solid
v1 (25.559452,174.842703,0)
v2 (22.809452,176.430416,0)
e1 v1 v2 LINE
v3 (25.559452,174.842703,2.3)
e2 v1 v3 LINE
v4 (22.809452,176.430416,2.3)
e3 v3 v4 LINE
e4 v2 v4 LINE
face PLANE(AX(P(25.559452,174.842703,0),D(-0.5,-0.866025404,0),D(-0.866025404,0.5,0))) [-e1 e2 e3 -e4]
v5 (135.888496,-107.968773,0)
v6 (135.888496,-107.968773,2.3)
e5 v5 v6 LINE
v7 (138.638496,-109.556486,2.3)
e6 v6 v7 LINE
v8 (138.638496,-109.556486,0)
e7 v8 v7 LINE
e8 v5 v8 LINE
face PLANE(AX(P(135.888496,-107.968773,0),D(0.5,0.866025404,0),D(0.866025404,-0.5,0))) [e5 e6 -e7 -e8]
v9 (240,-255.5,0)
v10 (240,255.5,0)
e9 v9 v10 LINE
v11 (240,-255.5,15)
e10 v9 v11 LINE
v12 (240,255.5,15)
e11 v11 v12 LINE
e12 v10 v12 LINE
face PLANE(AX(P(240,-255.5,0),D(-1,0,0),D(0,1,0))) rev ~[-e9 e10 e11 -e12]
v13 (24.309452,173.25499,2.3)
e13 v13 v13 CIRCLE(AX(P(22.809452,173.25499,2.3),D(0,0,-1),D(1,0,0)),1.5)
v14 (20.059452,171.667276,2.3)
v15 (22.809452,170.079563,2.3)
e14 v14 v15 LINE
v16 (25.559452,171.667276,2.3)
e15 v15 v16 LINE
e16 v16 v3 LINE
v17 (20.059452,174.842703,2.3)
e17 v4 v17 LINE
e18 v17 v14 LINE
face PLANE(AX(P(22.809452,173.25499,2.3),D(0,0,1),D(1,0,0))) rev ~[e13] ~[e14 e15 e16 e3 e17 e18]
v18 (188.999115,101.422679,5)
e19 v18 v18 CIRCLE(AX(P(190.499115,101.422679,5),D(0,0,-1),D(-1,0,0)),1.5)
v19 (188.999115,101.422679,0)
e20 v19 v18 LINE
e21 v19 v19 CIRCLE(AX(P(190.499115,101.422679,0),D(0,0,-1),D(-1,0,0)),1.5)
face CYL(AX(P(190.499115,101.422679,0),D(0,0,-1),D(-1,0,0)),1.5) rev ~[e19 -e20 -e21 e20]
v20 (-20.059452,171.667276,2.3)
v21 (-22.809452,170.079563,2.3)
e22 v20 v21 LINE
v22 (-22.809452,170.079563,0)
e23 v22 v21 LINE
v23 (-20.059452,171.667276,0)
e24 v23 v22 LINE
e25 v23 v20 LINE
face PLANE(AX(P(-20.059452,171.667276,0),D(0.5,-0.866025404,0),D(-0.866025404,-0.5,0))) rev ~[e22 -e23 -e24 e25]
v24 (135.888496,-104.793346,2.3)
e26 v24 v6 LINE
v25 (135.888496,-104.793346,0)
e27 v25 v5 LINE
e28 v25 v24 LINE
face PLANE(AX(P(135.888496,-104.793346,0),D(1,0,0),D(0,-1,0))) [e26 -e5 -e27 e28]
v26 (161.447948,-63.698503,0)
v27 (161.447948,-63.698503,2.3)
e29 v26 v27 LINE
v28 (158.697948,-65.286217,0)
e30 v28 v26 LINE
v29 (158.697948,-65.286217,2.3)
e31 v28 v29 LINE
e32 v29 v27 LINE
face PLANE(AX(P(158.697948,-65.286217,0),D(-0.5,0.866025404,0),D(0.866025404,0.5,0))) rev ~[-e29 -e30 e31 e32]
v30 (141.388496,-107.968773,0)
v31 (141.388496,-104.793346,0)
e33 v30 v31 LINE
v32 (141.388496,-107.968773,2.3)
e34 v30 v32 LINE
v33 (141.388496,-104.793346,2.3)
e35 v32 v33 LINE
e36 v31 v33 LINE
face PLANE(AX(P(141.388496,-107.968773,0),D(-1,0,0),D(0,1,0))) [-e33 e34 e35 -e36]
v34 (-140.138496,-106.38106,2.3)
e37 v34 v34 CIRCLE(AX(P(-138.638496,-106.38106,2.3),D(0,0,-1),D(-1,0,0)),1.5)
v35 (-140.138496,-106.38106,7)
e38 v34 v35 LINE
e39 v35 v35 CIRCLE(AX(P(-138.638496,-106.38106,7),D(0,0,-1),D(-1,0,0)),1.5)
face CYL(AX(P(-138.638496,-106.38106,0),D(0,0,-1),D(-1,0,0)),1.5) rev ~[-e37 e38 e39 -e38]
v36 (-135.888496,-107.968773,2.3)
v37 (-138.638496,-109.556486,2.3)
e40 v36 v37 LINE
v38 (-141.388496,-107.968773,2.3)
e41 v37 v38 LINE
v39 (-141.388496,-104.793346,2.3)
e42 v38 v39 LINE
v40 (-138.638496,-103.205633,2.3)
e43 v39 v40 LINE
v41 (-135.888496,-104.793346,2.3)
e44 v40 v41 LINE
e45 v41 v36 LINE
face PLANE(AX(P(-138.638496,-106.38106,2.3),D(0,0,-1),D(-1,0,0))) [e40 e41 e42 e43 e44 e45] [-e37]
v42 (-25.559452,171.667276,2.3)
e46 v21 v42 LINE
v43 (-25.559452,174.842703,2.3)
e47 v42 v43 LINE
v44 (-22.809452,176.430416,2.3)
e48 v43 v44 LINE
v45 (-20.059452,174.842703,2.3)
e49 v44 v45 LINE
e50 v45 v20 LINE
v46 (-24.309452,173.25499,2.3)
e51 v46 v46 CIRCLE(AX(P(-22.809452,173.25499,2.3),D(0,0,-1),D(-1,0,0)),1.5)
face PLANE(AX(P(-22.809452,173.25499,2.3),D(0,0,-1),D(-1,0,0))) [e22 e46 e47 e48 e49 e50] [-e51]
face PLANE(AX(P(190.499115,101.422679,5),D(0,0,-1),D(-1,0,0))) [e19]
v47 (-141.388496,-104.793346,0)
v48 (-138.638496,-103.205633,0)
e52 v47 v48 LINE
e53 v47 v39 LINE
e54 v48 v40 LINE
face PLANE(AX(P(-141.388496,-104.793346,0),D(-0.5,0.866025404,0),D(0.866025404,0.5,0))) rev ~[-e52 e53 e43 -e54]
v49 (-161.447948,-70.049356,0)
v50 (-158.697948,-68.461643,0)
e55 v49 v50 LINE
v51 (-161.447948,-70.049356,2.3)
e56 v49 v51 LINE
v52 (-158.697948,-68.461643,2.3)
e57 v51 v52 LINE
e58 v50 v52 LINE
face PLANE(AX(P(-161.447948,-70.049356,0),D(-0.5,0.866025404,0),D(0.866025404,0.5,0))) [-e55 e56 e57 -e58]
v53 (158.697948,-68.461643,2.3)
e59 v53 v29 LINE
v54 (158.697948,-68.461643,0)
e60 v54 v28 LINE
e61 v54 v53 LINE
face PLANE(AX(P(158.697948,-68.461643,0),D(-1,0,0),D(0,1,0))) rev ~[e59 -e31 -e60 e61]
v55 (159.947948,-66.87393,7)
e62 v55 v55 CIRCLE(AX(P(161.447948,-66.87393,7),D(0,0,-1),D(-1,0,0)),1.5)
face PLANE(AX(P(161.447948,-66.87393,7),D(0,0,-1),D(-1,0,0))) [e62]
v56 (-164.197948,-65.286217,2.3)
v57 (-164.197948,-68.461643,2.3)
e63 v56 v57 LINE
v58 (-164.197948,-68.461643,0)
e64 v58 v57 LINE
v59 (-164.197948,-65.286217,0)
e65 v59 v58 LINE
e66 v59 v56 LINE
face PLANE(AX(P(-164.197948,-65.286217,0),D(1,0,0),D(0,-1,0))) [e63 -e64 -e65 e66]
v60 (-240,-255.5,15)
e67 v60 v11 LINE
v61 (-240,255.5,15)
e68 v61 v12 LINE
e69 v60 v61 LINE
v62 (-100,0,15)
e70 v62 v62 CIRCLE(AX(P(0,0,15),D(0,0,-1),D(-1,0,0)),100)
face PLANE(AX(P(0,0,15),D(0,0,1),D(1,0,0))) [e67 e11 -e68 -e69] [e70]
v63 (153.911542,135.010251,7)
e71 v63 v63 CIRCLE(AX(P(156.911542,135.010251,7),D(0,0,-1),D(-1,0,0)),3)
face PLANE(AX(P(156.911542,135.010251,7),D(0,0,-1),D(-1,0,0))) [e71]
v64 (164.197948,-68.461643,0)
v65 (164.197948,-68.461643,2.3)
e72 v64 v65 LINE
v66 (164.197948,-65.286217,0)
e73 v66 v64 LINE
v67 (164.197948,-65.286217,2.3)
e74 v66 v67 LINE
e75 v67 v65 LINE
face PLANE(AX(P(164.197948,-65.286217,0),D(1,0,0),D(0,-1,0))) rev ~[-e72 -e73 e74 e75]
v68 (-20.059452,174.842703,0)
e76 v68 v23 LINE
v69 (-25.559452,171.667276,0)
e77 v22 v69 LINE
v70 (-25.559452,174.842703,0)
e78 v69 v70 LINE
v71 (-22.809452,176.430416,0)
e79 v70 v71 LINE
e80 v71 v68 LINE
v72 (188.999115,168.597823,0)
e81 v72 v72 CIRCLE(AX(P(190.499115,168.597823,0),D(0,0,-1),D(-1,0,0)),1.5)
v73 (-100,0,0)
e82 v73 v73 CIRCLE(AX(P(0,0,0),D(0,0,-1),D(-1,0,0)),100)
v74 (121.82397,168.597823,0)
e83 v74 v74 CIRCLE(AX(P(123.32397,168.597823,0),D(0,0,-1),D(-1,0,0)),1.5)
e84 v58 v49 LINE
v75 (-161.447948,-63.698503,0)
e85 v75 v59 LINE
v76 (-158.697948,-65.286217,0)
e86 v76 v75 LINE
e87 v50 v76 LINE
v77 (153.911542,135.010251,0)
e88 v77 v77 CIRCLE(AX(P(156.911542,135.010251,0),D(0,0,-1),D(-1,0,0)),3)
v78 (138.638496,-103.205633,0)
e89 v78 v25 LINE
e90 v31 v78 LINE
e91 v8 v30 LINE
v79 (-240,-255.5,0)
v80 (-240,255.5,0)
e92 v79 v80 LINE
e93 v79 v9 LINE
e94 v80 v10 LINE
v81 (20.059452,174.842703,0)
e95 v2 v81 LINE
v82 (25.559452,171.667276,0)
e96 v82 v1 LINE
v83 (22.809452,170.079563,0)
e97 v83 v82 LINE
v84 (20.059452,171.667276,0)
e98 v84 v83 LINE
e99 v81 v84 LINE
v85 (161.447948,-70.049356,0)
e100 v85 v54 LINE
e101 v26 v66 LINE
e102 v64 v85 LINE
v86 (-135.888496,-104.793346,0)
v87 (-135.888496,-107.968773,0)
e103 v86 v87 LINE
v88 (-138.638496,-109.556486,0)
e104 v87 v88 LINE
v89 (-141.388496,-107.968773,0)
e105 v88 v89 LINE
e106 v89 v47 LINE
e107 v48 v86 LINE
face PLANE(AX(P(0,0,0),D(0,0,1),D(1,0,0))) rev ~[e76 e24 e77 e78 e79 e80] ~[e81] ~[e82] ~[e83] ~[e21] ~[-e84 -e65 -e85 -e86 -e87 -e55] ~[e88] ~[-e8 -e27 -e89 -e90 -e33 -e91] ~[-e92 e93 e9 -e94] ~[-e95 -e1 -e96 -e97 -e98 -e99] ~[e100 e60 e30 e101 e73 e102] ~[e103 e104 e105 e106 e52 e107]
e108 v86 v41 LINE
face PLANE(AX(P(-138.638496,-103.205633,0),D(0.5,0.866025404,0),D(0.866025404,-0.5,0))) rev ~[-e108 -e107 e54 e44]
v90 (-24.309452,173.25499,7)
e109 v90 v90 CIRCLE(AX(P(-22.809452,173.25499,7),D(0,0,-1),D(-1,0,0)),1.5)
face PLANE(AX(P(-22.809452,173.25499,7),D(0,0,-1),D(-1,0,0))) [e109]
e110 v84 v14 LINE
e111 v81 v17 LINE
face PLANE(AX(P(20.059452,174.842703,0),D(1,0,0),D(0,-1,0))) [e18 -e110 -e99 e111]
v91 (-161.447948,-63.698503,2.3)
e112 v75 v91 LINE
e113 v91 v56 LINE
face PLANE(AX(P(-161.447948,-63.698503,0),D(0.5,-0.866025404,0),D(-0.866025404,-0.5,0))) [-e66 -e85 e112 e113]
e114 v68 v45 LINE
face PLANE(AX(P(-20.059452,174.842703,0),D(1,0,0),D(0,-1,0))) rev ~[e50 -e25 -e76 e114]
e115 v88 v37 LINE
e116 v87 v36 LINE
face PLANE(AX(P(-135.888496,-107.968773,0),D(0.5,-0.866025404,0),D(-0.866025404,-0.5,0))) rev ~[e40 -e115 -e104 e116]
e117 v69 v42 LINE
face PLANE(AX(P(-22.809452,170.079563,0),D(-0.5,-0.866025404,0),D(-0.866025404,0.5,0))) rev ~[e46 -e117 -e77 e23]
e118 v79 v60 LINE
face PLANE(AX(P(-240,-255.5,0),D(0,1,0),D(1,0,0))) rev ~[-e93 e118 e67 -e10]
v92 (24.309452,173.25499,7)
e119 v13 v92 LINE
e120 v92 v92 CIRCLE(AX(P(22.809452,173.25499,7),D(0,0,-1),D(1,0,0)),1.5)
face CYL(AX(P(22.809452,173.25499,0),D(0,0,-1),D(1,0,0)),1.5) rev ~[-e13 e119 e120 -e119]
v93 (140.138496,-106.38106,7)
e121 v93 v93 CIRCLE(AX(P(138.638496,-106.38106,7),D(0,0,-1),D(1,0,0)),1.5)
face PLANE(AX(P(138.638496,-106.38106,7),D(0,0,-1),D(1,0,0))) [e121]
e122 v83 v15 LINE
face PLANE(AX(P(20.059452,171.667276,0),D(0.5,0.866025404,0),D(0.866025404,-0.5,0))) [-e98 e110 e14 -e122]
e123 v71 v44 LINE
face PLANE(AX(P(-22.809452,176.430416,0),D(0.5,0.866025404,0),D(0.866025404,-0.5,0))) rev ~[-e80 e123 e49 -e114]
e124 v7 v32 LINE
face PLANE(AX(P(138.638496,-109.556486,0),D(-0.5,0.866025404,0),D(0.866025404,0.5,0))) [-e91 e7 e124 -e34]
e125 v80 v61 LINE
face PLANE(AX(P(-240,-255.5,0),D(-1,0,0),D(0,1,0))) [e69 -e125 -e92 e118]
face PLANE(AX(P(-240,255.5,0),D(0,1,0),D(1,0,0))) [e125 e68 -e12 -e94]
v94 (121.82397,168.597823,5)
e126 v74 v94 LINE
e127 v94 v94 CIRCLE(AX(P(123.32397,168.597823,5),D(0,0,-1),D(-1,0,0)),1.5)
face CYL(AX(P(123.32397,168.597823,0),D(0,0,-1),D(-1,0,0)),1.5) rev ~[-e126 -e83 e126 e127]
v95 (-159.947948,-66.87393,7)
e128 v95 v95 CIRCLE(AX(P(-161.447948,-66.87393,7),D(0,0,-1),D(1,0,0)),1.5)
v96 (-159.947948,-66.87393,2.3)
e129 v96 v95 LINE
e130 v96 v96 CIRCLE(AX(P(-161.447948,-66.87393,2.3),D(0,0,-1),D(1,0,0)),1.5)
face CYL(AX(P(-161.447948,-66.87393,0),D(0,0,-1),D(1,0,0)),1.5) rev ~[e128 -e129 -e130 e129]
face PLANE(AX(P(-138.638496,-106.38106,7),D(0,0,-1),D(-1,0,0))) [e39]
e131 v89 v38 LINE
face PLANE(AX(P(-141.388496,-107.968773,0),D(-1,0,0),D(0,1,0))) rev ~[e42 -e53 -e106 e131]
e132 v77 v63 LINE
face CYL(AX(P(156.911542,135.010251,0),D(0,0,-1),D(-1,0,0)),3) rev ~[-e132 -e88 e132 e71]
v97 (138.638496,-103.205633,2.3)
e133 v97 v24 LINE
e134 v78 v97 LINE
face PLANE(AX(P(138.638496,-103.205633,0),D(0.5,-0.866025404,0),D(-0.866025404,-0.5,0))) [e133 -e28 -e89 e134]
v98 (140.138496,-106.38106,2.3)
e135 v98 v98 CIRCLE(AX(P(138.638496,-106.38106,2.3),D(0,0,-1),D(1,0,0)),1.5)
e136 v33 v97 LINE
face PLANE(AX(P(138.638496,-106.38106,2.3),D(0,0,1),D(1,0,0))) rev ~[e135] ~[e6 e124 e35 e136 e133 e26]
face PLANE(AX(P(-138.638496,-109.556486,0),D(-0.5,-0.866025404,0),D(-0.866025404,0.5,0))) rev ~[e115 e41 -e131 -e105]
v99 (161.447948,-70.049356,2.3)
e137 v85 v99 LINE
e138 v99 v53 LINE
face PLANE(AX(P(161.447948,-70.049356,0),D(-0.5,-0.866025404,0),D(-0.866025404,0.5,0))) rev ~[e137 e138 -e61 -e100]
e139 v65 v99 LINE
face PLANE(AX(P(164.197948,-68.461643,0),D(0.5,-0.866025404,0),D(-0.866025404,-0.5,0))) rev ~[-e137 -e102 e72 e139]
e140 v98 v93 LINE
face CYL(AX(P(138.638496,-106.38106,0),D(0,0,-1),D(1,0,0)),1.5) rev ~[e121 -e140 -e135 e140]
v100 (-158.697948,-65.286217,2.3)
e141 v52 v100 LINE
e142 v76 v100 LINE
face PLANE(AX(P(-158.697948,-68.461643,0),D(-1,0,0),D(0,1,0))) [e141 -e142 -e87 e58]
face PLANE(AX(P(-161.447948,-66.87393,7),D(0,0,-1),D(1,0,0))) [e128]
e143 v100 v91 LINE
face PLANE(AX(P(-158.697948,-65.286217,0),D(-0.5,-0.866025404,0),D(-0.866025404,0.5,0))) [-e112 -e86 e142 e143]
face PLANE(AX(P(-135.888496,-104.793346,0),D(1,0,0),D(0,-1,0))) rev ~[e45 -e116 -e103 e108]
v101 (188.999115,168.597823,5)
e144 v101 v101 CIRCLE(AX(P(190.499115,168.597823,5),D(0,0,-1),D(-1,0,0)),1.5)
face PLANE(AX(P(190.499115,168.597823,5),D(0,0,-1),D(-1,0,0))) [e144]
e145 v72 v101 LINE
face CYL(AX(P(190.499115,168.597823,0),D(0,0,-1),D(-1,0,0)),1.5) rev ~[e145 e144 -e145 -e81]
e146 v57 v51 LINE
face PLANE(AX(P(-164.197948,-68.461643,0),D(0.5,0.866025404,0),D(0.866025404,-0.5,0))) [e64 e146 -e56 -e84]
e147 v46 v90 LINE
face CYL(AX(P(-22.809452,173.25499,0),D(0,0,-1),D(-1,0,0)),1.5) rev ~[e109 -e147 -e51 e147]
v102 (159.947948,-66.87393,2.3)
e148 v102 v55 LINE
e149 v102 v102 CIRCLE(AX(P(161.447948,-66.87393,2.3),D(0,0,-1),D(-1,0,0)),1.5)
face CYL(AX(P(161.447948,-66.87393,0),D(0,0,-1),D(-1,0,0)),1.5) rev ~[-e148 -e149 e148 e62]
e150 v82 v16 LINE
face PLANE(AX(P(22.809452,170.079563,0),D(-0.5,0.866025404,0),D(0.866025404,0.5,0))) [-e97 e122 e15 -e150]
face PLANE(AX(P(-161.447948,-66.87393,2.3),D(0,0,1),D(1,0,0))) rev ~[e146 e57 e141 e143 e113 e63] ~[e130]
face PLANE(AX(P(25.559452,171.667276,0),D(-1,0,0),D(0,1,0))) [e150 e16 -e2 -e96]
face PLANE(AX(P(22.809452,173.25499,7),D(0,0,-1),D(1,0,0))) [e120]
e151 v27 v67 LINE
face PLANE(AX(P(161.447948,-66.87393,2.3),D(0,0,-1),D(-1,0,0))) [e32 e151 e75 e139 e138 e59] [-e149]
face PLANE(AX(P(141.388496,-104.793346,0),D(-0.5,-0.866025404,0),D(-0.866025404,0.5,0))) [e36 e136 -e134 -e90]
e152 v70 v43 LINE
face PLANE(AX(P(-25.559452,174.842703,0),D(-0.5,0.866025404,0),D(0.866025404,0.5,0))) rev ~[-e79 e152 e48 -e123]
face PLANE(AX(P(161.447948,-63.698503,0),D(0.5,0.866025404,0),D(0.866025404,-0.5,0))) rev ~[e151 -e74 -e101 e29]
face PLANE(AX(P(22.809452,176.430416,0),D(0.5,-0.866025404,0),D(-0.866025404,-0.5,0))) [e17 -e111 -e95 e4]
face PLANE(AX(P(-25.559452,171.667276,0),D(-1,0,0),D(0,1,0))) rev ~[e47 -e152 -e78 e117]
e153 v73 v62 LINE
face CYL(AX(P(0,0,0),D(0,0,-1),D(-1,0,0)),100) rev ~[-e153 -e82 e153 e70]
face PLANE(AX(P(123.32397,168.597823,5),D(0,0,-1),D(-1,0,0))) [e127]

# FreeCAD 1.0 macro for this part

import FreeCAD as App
import Part
import Sketcher

V = App.Vector
Q = App.Units.Quantity


def add_polygon(sketch, points):
    """Adds a closed chain of lines whose ends are joined by coincident constraints."""
    first, n = sketch.GeometryCount, len(points)
    for a, b in zip(points, points[1:] + points[:1]):
        sketch.addGeometry(Part.LineSegment(App.Vector(*a, 0), App.Vector(*b, 0)), False)
    for i in range(n):
        sketch.addConstraint(Sketcher.Constraint("Coincident", first + i, 2, first + (i + 1) % n, 1))

doc = App.newDocument("Part")
body = doc.addObject("PartDesign::Body", "Body")

sketch1 = body.newObject("Sketcher::SketchObject", "Sketch")
sketch1.AttachmentSupport = (doc.getObject("XY_Plane"), [""])
sketch1.MapMode = "FlatFace"
add_polygon(sketch1, [(-240, 256), (-240, -256), (240, -256), (240, 256)])
sketch1.addConstraint([
    Sketcher.Constraint("Vertical", 0),
    Sketcher.Constraint("Horizontal", 1),
    Sketcher.Constraint("Vertical", 2),
    Sketcher.Constraint("Horizontal", 3),
    Sketcher.Constraint("Symmetric", 0, 2, 2, 2, -1, 1),
    Sketcher.Constraint("DistanceX", 1, 1, 1, 2, 480.0),
    Sketcher.Constraint("DistanceY", 0, 2, 0, 1, 511.0),
])
pad1 = body.newObject("PartDesign::Pad", "Pad")
pad1.Profile = sketch1
pad1.Length = 15

sketch2 = body.newObject("Sketcher::SketchObject", "Sketch001")
sketch2.AttachmentSupport = (doc.getObject("XY_Plane"), [""])
sketch2.MapMode = "FlatFace"
sketch2.addGeometry(Part.Circle(V(0, 0, 0), V(0, 0, 1), 100), False)
sketch2.addConstraint([
    Sketcher.Constraint("Coincident", 0, 3, -1, 1),
    Sketcher.Constraint("Diameter", 0, 200.0),
])
pocket1 = body.newObject("PartDesign::Pocket", "Pocket")
pocket1.Profile = sketch2
pocket1.Length = 15
pocket1.Reversed = True

sketch3 = body.newObject("Sketcher::SketchObject", "Sketch002")
sketch3.AttachmentSupport = (doc.getObject("XY_Plane"), [""])
sketch3.MapMode = "FlatFace"
sketch3.addGeometry([
    Part.Circle(V(-22.8, 173.3, 0), V(0, 0, 1), 1.5),
    Part.Circle(V(22.8, 173.3, 0), V(0, 0, 1), 1.5),
    Part.Circle(V(161.4, -66.9, 0), V(0, 0, 1), 1.5),
    Part.Circle(V(138.6, -106.4, 0), V(0, 0, 1), 1.5),
    Part.Circle(V(-138.6, -106.4, 0), V(0, 0, 1), 1.5),
    Part.Circle(V(-161.4, -66.9, 0), V(0, 0, 1), 1.5),
], False)
sketch3.addConstraint([
    Sketcher.Constraint("Equal", 0, 1),
    Sketcher.Constraint("Equal", 1, 2),
    Sketcher.Constraint("Equal", 2, 3),
    Sketcher.Constraint("Equal", 3, 4),
    Sketcher.Constraint("Equal", 4, 5),
    Sketcher.Constraint("Symmetric", 0, 3, 1, 3, -2),
    Sketcher.Constraint("Symmetric", 3, 3, 4, 3, -2),
    Sketcher.Constraint("Symmetric", 2, 3, 5, 3, -2),
    Sketcher.Constraint("Diameter", 0, 3.0),
    Sketcher.Constraint("DistanceX", 0, 3, 2, 3, 184.2574),
    Sketcher.Constraint("DistanceY", -1, 1, 0, 3, 173.25499),
    Sketcher.Constraint("DistanceX", -1, 1, 2, 3, 161.447948),
    Sketcher.Constraint("DistanceY", 2, 3, -1, 1, 66.87393),
    Sketcher.Constraint("DistanceY", 3, 3, -1, 1, 106.38106),
    Sketcher.Constraint("DistanceX", 0, 3, 3, 3, 161.447948),
])
pocket2 = body.newObject("PartDesign::Pocket", "Pocket001")
pocket2.Profile = sketch3
pocket2.Length = 7
pocket2.Reversed = True

sketch4 = body.newObject("Sketcher::SketchObject", "Sketch003")
sketch4.AttachmentSupport = (doc.getObject("XY_Plane"), [""])
sketch4.MapMode = "FlatFace"
add_polygon(sketch4, [(-22.8, 176.4), (-20.1, 174.8), (-20.1, 171.7), (-22.8, 170.1), (-25.6, 171.7), (-25.6, 174.8)])
add_polygon(sketch4, [(20.1, 171.7), (20.1, 174.8), (22.8, 176.4), (25.6, 174.8), (25.6, 171.7), (22.8, 170.1)])
add_polygon(sketch4, [(164.2, -68.5), (161.4, -70), (158.7, -68.5), (158.7, -65.3), (161.4, -63.7), (164.2, -65.3)])
add_polygon(sketch4, [(141.4, -108), (138.6, -109.6), (135.9, -108), (135.9, -104.8), (138.6, -103.2), (141.4, -104.8)])
add_polygon(sketch4, [(-141.4, -108), (-141.4, -104.8), (-138.6, -103.2), (-135.9, -104.8), (-135.9, -108), (-138.6, -109.6)])
add_polygon(sketch4, [(-164.2, -68.5), (-164.2, -65.3), (-161.4, -63.7), (-158.7, -65.3), (-158.7, -68.5), (-161.4, -70)])
sketch4.addConstraint([
    Sketcher.Constraint("Vertical", 1),
    Sketcher.Constraint("Vertical", 4),
    Sketcher.Constraint("Vertical", 6),
    Sketcher.Constraint("Vertical", 9),
    Sketcher.Constraint("Vertical", 14),
    Sketcher.Constraint("Vertical", 17),
    Sketcher.Constraint("Vertical", 20),
    Sketcher.Constraint("Vertical", 23),
    Sketcher.Constraint("Vertical", 24),
    Sketcher.Constraint("Vertical", 27),
    Sketcher.Constraint("Vertical", 30),
    Sketcher.Constraint("Vertical", 33),
    Sketcher.Constraint("Symmetric", 0, 2, 6, 2, -2),
    Sketcher.Constraint("Symmetric", 5, 2, 7, 2, -2),
    Sketcher.Constraint("Symmetric", 4, 2, 8, 2, -2),
    Sketcher.Constraint("Symmetric", 2, 2, 10, 2, -2),
    Sketcher.Constraint("Symmetric", 22, 2, 24, 2, -2),
    Sketcher.Constraint("Symmetric", 21, 2, 25, 2, -2),
    Sketcher.Constraint("Symmetric", 20, 2, 26, 2, -2),
    Sketcher.Constraint("Symmetric", 18, 2, 28, 2, -2),
    Sketcher.Constraint("Symmetric", 16, 2, 30, 2, -2),
    Sketcher.Constraint("Symmetric", 15, 2, 31, 2, -2),
    Sketcher.Constraint("Symmetric", 14, 2, 32, 2, -2),
    Sketcher.Constraint("Symmetric", 12, 2, 34, 2, -2),
    Sketcher.Constraint("Parallel", 0, 3),
    Sketcher.Constraint("Parallel", 2, 5),
    Sketcher.Constraint("Parallel", 5, 7),
    Sketcher.Constraint("Parallel", 7, 10),
    Sketcher.Constraint("Parallel", 8, 11),
    Sketcher.Constraint("Parallel", 10, 12),
    Sketcher.Constraint("Parallel", 11, 13),
    Sketcher.Constraint("Parallel", 12, 15),
    Sketcher.Constraint("Parallel", 13, 16),
    Sketcher.Constraint("Parallel", 15, 18),
    Sketcher.Constraint("Parallel", 16, 19),
    Sketcher.Constraint("Parallel", 18, 21),
    Sketcher.Constraint("Parallel", 19, 22),
    Sketcher.Constraint("Parallel", 25, 28),
    Sketcher.Constraint("Parallel", 26, 29),
    Sketcher.Constraint("Parallel", 31, 34),
    Sketcher.Constraint("Parallel", 32, 35),
    Sketcher.Constraint("Horizontal", 1, 2, 3, 2),
    Sketcher.Constraint("Horizontal", 0, 2, 4, 2),
    Sketcher.Constraint("Horizontal", 14, 2, 16, 2),
    Sketcher.Constraint("Horizontal", 13, 2, 17, 2),
    Sketcher.Constraint("Horizontal", 20, 2, 22, 2),
    Sketcher.Constraint("Horizontal", 19, 2, 23, 2),
    Sketcher.Constraint("Equal", 9, 14),
    Sketcher.Constraint("Equal", 17, 20),
    Sketcher.Constraint("Equal", 11, 12),
    Sketcher.Constraint("Equal", 16, 18),
    Sketcher.Constraint("Angle", 0, Q("-30 deg")),
    Sketcher.Constraint("DistanceX", 3, 2, 1, 2, 5.5),
    Sketcher.Constraint("DistanceY", 1, 2, 1, 1, 3.175426),
    Sketcher.Constraint("DistanceX", -1, 1, 12, 2, 161.447948),
    Sketcher.Constraint("DistanceY", 12, 2, 10, 2, 240.128919),
    Sketcher.Constraint("DistanceY", 18, 2, 12, 2, 39.50713),
    Sketcher.Constraint("DistanceX", 0, 2, -1, 1, 20.059452),
    Sketcher.Constraint("DistanceY", -1, 1, 0, 2, 174.842703),
    Sketcher.Constraint("DistanceX", -1, 1, 18, 2, 138.638496),
])
pocket3 = body.newObject("PartDesign::Pocket", "Pocket002")
pocket3.Profile = sketch4
pocket3.Length = 2.3
pocket3.Reversed = True

sketch5 = body.newObject("Sketcher::SketchObject", "Sketch004")
sketch5.AttachmentSupport = (doc.getObject("XY_Plane"), [""])
sketch5.MapMode = "FlatFace"
sketch5.addGeometry(Part.Circle(V(156.9, 135, 0), V(0, 0, 1), 3), False)
sketch5.addConstraint([
    Sketcher.Constraint("Diameter", 0, 6.0),
    Sketcher.Constraint("DistanceY", -1, 1, 0, 3, 135.010251),
    Sketcher.Constraint("DistanceX", -1, 1, 0, 3, 156.911542),
])
pocket4 = body.newObject("PartDesign::Pocket", "Pocket003")
pocket4.Profile = sketch5
pocket4.Length = 7
pocket4.Reversed = True

sketch6 = body.newObject("Sketcher::SketchObject", "Sketch005")
sketch6.AttachmentSupport = (doc.getObject("XY_Plane"), [""])
sketch6.MapMode = "FlatFace"
sketch6.addGeometry([
    Part.Circle(V(123.3, 168.6, 0), V(0, 0, 1), 1.5),
    Part.Circle(V(190.5, 168.6, 0), V(0, 0, 1), 1.5),
    Part.Circle(V(190.5, 101.4, 0), V(0, 0, 1), 1.5),
], False)
sketch6.addConstraint([
    Sketcher.Constraint("Equal", 0, 1),
    Sketcher.Constraint("Equal", 1, 2),
    Sketcher.Constraint("Horizontal", 0, 3, 1, 3),
    Sketcher.Constraint("Vertical", 1, 3, 2, 3),
    Sketcher.Constraint("Diameter", 0, 3.0),
    Sketcher.Constraint("DistanceX", -1, 1, 0, 3, 123.32397),
    Sketcher.Constraint("DistanceY", -1, 1, 2, 3, 101.422679),
    Sketcher.Constraint("DistanceY", -1, 1, 0, 3, 168.597823),
    Sketcher.Constraint("DistanceX", -1, 1, 1, 3, 190.499115),
])
pocket5 = body.newObject("PartDesign::Pocket", "Pocket004")
pocket5.Profile = sketch6
pocket5.Length = 5
pocket5.Reversed = True

doc.recompute()
